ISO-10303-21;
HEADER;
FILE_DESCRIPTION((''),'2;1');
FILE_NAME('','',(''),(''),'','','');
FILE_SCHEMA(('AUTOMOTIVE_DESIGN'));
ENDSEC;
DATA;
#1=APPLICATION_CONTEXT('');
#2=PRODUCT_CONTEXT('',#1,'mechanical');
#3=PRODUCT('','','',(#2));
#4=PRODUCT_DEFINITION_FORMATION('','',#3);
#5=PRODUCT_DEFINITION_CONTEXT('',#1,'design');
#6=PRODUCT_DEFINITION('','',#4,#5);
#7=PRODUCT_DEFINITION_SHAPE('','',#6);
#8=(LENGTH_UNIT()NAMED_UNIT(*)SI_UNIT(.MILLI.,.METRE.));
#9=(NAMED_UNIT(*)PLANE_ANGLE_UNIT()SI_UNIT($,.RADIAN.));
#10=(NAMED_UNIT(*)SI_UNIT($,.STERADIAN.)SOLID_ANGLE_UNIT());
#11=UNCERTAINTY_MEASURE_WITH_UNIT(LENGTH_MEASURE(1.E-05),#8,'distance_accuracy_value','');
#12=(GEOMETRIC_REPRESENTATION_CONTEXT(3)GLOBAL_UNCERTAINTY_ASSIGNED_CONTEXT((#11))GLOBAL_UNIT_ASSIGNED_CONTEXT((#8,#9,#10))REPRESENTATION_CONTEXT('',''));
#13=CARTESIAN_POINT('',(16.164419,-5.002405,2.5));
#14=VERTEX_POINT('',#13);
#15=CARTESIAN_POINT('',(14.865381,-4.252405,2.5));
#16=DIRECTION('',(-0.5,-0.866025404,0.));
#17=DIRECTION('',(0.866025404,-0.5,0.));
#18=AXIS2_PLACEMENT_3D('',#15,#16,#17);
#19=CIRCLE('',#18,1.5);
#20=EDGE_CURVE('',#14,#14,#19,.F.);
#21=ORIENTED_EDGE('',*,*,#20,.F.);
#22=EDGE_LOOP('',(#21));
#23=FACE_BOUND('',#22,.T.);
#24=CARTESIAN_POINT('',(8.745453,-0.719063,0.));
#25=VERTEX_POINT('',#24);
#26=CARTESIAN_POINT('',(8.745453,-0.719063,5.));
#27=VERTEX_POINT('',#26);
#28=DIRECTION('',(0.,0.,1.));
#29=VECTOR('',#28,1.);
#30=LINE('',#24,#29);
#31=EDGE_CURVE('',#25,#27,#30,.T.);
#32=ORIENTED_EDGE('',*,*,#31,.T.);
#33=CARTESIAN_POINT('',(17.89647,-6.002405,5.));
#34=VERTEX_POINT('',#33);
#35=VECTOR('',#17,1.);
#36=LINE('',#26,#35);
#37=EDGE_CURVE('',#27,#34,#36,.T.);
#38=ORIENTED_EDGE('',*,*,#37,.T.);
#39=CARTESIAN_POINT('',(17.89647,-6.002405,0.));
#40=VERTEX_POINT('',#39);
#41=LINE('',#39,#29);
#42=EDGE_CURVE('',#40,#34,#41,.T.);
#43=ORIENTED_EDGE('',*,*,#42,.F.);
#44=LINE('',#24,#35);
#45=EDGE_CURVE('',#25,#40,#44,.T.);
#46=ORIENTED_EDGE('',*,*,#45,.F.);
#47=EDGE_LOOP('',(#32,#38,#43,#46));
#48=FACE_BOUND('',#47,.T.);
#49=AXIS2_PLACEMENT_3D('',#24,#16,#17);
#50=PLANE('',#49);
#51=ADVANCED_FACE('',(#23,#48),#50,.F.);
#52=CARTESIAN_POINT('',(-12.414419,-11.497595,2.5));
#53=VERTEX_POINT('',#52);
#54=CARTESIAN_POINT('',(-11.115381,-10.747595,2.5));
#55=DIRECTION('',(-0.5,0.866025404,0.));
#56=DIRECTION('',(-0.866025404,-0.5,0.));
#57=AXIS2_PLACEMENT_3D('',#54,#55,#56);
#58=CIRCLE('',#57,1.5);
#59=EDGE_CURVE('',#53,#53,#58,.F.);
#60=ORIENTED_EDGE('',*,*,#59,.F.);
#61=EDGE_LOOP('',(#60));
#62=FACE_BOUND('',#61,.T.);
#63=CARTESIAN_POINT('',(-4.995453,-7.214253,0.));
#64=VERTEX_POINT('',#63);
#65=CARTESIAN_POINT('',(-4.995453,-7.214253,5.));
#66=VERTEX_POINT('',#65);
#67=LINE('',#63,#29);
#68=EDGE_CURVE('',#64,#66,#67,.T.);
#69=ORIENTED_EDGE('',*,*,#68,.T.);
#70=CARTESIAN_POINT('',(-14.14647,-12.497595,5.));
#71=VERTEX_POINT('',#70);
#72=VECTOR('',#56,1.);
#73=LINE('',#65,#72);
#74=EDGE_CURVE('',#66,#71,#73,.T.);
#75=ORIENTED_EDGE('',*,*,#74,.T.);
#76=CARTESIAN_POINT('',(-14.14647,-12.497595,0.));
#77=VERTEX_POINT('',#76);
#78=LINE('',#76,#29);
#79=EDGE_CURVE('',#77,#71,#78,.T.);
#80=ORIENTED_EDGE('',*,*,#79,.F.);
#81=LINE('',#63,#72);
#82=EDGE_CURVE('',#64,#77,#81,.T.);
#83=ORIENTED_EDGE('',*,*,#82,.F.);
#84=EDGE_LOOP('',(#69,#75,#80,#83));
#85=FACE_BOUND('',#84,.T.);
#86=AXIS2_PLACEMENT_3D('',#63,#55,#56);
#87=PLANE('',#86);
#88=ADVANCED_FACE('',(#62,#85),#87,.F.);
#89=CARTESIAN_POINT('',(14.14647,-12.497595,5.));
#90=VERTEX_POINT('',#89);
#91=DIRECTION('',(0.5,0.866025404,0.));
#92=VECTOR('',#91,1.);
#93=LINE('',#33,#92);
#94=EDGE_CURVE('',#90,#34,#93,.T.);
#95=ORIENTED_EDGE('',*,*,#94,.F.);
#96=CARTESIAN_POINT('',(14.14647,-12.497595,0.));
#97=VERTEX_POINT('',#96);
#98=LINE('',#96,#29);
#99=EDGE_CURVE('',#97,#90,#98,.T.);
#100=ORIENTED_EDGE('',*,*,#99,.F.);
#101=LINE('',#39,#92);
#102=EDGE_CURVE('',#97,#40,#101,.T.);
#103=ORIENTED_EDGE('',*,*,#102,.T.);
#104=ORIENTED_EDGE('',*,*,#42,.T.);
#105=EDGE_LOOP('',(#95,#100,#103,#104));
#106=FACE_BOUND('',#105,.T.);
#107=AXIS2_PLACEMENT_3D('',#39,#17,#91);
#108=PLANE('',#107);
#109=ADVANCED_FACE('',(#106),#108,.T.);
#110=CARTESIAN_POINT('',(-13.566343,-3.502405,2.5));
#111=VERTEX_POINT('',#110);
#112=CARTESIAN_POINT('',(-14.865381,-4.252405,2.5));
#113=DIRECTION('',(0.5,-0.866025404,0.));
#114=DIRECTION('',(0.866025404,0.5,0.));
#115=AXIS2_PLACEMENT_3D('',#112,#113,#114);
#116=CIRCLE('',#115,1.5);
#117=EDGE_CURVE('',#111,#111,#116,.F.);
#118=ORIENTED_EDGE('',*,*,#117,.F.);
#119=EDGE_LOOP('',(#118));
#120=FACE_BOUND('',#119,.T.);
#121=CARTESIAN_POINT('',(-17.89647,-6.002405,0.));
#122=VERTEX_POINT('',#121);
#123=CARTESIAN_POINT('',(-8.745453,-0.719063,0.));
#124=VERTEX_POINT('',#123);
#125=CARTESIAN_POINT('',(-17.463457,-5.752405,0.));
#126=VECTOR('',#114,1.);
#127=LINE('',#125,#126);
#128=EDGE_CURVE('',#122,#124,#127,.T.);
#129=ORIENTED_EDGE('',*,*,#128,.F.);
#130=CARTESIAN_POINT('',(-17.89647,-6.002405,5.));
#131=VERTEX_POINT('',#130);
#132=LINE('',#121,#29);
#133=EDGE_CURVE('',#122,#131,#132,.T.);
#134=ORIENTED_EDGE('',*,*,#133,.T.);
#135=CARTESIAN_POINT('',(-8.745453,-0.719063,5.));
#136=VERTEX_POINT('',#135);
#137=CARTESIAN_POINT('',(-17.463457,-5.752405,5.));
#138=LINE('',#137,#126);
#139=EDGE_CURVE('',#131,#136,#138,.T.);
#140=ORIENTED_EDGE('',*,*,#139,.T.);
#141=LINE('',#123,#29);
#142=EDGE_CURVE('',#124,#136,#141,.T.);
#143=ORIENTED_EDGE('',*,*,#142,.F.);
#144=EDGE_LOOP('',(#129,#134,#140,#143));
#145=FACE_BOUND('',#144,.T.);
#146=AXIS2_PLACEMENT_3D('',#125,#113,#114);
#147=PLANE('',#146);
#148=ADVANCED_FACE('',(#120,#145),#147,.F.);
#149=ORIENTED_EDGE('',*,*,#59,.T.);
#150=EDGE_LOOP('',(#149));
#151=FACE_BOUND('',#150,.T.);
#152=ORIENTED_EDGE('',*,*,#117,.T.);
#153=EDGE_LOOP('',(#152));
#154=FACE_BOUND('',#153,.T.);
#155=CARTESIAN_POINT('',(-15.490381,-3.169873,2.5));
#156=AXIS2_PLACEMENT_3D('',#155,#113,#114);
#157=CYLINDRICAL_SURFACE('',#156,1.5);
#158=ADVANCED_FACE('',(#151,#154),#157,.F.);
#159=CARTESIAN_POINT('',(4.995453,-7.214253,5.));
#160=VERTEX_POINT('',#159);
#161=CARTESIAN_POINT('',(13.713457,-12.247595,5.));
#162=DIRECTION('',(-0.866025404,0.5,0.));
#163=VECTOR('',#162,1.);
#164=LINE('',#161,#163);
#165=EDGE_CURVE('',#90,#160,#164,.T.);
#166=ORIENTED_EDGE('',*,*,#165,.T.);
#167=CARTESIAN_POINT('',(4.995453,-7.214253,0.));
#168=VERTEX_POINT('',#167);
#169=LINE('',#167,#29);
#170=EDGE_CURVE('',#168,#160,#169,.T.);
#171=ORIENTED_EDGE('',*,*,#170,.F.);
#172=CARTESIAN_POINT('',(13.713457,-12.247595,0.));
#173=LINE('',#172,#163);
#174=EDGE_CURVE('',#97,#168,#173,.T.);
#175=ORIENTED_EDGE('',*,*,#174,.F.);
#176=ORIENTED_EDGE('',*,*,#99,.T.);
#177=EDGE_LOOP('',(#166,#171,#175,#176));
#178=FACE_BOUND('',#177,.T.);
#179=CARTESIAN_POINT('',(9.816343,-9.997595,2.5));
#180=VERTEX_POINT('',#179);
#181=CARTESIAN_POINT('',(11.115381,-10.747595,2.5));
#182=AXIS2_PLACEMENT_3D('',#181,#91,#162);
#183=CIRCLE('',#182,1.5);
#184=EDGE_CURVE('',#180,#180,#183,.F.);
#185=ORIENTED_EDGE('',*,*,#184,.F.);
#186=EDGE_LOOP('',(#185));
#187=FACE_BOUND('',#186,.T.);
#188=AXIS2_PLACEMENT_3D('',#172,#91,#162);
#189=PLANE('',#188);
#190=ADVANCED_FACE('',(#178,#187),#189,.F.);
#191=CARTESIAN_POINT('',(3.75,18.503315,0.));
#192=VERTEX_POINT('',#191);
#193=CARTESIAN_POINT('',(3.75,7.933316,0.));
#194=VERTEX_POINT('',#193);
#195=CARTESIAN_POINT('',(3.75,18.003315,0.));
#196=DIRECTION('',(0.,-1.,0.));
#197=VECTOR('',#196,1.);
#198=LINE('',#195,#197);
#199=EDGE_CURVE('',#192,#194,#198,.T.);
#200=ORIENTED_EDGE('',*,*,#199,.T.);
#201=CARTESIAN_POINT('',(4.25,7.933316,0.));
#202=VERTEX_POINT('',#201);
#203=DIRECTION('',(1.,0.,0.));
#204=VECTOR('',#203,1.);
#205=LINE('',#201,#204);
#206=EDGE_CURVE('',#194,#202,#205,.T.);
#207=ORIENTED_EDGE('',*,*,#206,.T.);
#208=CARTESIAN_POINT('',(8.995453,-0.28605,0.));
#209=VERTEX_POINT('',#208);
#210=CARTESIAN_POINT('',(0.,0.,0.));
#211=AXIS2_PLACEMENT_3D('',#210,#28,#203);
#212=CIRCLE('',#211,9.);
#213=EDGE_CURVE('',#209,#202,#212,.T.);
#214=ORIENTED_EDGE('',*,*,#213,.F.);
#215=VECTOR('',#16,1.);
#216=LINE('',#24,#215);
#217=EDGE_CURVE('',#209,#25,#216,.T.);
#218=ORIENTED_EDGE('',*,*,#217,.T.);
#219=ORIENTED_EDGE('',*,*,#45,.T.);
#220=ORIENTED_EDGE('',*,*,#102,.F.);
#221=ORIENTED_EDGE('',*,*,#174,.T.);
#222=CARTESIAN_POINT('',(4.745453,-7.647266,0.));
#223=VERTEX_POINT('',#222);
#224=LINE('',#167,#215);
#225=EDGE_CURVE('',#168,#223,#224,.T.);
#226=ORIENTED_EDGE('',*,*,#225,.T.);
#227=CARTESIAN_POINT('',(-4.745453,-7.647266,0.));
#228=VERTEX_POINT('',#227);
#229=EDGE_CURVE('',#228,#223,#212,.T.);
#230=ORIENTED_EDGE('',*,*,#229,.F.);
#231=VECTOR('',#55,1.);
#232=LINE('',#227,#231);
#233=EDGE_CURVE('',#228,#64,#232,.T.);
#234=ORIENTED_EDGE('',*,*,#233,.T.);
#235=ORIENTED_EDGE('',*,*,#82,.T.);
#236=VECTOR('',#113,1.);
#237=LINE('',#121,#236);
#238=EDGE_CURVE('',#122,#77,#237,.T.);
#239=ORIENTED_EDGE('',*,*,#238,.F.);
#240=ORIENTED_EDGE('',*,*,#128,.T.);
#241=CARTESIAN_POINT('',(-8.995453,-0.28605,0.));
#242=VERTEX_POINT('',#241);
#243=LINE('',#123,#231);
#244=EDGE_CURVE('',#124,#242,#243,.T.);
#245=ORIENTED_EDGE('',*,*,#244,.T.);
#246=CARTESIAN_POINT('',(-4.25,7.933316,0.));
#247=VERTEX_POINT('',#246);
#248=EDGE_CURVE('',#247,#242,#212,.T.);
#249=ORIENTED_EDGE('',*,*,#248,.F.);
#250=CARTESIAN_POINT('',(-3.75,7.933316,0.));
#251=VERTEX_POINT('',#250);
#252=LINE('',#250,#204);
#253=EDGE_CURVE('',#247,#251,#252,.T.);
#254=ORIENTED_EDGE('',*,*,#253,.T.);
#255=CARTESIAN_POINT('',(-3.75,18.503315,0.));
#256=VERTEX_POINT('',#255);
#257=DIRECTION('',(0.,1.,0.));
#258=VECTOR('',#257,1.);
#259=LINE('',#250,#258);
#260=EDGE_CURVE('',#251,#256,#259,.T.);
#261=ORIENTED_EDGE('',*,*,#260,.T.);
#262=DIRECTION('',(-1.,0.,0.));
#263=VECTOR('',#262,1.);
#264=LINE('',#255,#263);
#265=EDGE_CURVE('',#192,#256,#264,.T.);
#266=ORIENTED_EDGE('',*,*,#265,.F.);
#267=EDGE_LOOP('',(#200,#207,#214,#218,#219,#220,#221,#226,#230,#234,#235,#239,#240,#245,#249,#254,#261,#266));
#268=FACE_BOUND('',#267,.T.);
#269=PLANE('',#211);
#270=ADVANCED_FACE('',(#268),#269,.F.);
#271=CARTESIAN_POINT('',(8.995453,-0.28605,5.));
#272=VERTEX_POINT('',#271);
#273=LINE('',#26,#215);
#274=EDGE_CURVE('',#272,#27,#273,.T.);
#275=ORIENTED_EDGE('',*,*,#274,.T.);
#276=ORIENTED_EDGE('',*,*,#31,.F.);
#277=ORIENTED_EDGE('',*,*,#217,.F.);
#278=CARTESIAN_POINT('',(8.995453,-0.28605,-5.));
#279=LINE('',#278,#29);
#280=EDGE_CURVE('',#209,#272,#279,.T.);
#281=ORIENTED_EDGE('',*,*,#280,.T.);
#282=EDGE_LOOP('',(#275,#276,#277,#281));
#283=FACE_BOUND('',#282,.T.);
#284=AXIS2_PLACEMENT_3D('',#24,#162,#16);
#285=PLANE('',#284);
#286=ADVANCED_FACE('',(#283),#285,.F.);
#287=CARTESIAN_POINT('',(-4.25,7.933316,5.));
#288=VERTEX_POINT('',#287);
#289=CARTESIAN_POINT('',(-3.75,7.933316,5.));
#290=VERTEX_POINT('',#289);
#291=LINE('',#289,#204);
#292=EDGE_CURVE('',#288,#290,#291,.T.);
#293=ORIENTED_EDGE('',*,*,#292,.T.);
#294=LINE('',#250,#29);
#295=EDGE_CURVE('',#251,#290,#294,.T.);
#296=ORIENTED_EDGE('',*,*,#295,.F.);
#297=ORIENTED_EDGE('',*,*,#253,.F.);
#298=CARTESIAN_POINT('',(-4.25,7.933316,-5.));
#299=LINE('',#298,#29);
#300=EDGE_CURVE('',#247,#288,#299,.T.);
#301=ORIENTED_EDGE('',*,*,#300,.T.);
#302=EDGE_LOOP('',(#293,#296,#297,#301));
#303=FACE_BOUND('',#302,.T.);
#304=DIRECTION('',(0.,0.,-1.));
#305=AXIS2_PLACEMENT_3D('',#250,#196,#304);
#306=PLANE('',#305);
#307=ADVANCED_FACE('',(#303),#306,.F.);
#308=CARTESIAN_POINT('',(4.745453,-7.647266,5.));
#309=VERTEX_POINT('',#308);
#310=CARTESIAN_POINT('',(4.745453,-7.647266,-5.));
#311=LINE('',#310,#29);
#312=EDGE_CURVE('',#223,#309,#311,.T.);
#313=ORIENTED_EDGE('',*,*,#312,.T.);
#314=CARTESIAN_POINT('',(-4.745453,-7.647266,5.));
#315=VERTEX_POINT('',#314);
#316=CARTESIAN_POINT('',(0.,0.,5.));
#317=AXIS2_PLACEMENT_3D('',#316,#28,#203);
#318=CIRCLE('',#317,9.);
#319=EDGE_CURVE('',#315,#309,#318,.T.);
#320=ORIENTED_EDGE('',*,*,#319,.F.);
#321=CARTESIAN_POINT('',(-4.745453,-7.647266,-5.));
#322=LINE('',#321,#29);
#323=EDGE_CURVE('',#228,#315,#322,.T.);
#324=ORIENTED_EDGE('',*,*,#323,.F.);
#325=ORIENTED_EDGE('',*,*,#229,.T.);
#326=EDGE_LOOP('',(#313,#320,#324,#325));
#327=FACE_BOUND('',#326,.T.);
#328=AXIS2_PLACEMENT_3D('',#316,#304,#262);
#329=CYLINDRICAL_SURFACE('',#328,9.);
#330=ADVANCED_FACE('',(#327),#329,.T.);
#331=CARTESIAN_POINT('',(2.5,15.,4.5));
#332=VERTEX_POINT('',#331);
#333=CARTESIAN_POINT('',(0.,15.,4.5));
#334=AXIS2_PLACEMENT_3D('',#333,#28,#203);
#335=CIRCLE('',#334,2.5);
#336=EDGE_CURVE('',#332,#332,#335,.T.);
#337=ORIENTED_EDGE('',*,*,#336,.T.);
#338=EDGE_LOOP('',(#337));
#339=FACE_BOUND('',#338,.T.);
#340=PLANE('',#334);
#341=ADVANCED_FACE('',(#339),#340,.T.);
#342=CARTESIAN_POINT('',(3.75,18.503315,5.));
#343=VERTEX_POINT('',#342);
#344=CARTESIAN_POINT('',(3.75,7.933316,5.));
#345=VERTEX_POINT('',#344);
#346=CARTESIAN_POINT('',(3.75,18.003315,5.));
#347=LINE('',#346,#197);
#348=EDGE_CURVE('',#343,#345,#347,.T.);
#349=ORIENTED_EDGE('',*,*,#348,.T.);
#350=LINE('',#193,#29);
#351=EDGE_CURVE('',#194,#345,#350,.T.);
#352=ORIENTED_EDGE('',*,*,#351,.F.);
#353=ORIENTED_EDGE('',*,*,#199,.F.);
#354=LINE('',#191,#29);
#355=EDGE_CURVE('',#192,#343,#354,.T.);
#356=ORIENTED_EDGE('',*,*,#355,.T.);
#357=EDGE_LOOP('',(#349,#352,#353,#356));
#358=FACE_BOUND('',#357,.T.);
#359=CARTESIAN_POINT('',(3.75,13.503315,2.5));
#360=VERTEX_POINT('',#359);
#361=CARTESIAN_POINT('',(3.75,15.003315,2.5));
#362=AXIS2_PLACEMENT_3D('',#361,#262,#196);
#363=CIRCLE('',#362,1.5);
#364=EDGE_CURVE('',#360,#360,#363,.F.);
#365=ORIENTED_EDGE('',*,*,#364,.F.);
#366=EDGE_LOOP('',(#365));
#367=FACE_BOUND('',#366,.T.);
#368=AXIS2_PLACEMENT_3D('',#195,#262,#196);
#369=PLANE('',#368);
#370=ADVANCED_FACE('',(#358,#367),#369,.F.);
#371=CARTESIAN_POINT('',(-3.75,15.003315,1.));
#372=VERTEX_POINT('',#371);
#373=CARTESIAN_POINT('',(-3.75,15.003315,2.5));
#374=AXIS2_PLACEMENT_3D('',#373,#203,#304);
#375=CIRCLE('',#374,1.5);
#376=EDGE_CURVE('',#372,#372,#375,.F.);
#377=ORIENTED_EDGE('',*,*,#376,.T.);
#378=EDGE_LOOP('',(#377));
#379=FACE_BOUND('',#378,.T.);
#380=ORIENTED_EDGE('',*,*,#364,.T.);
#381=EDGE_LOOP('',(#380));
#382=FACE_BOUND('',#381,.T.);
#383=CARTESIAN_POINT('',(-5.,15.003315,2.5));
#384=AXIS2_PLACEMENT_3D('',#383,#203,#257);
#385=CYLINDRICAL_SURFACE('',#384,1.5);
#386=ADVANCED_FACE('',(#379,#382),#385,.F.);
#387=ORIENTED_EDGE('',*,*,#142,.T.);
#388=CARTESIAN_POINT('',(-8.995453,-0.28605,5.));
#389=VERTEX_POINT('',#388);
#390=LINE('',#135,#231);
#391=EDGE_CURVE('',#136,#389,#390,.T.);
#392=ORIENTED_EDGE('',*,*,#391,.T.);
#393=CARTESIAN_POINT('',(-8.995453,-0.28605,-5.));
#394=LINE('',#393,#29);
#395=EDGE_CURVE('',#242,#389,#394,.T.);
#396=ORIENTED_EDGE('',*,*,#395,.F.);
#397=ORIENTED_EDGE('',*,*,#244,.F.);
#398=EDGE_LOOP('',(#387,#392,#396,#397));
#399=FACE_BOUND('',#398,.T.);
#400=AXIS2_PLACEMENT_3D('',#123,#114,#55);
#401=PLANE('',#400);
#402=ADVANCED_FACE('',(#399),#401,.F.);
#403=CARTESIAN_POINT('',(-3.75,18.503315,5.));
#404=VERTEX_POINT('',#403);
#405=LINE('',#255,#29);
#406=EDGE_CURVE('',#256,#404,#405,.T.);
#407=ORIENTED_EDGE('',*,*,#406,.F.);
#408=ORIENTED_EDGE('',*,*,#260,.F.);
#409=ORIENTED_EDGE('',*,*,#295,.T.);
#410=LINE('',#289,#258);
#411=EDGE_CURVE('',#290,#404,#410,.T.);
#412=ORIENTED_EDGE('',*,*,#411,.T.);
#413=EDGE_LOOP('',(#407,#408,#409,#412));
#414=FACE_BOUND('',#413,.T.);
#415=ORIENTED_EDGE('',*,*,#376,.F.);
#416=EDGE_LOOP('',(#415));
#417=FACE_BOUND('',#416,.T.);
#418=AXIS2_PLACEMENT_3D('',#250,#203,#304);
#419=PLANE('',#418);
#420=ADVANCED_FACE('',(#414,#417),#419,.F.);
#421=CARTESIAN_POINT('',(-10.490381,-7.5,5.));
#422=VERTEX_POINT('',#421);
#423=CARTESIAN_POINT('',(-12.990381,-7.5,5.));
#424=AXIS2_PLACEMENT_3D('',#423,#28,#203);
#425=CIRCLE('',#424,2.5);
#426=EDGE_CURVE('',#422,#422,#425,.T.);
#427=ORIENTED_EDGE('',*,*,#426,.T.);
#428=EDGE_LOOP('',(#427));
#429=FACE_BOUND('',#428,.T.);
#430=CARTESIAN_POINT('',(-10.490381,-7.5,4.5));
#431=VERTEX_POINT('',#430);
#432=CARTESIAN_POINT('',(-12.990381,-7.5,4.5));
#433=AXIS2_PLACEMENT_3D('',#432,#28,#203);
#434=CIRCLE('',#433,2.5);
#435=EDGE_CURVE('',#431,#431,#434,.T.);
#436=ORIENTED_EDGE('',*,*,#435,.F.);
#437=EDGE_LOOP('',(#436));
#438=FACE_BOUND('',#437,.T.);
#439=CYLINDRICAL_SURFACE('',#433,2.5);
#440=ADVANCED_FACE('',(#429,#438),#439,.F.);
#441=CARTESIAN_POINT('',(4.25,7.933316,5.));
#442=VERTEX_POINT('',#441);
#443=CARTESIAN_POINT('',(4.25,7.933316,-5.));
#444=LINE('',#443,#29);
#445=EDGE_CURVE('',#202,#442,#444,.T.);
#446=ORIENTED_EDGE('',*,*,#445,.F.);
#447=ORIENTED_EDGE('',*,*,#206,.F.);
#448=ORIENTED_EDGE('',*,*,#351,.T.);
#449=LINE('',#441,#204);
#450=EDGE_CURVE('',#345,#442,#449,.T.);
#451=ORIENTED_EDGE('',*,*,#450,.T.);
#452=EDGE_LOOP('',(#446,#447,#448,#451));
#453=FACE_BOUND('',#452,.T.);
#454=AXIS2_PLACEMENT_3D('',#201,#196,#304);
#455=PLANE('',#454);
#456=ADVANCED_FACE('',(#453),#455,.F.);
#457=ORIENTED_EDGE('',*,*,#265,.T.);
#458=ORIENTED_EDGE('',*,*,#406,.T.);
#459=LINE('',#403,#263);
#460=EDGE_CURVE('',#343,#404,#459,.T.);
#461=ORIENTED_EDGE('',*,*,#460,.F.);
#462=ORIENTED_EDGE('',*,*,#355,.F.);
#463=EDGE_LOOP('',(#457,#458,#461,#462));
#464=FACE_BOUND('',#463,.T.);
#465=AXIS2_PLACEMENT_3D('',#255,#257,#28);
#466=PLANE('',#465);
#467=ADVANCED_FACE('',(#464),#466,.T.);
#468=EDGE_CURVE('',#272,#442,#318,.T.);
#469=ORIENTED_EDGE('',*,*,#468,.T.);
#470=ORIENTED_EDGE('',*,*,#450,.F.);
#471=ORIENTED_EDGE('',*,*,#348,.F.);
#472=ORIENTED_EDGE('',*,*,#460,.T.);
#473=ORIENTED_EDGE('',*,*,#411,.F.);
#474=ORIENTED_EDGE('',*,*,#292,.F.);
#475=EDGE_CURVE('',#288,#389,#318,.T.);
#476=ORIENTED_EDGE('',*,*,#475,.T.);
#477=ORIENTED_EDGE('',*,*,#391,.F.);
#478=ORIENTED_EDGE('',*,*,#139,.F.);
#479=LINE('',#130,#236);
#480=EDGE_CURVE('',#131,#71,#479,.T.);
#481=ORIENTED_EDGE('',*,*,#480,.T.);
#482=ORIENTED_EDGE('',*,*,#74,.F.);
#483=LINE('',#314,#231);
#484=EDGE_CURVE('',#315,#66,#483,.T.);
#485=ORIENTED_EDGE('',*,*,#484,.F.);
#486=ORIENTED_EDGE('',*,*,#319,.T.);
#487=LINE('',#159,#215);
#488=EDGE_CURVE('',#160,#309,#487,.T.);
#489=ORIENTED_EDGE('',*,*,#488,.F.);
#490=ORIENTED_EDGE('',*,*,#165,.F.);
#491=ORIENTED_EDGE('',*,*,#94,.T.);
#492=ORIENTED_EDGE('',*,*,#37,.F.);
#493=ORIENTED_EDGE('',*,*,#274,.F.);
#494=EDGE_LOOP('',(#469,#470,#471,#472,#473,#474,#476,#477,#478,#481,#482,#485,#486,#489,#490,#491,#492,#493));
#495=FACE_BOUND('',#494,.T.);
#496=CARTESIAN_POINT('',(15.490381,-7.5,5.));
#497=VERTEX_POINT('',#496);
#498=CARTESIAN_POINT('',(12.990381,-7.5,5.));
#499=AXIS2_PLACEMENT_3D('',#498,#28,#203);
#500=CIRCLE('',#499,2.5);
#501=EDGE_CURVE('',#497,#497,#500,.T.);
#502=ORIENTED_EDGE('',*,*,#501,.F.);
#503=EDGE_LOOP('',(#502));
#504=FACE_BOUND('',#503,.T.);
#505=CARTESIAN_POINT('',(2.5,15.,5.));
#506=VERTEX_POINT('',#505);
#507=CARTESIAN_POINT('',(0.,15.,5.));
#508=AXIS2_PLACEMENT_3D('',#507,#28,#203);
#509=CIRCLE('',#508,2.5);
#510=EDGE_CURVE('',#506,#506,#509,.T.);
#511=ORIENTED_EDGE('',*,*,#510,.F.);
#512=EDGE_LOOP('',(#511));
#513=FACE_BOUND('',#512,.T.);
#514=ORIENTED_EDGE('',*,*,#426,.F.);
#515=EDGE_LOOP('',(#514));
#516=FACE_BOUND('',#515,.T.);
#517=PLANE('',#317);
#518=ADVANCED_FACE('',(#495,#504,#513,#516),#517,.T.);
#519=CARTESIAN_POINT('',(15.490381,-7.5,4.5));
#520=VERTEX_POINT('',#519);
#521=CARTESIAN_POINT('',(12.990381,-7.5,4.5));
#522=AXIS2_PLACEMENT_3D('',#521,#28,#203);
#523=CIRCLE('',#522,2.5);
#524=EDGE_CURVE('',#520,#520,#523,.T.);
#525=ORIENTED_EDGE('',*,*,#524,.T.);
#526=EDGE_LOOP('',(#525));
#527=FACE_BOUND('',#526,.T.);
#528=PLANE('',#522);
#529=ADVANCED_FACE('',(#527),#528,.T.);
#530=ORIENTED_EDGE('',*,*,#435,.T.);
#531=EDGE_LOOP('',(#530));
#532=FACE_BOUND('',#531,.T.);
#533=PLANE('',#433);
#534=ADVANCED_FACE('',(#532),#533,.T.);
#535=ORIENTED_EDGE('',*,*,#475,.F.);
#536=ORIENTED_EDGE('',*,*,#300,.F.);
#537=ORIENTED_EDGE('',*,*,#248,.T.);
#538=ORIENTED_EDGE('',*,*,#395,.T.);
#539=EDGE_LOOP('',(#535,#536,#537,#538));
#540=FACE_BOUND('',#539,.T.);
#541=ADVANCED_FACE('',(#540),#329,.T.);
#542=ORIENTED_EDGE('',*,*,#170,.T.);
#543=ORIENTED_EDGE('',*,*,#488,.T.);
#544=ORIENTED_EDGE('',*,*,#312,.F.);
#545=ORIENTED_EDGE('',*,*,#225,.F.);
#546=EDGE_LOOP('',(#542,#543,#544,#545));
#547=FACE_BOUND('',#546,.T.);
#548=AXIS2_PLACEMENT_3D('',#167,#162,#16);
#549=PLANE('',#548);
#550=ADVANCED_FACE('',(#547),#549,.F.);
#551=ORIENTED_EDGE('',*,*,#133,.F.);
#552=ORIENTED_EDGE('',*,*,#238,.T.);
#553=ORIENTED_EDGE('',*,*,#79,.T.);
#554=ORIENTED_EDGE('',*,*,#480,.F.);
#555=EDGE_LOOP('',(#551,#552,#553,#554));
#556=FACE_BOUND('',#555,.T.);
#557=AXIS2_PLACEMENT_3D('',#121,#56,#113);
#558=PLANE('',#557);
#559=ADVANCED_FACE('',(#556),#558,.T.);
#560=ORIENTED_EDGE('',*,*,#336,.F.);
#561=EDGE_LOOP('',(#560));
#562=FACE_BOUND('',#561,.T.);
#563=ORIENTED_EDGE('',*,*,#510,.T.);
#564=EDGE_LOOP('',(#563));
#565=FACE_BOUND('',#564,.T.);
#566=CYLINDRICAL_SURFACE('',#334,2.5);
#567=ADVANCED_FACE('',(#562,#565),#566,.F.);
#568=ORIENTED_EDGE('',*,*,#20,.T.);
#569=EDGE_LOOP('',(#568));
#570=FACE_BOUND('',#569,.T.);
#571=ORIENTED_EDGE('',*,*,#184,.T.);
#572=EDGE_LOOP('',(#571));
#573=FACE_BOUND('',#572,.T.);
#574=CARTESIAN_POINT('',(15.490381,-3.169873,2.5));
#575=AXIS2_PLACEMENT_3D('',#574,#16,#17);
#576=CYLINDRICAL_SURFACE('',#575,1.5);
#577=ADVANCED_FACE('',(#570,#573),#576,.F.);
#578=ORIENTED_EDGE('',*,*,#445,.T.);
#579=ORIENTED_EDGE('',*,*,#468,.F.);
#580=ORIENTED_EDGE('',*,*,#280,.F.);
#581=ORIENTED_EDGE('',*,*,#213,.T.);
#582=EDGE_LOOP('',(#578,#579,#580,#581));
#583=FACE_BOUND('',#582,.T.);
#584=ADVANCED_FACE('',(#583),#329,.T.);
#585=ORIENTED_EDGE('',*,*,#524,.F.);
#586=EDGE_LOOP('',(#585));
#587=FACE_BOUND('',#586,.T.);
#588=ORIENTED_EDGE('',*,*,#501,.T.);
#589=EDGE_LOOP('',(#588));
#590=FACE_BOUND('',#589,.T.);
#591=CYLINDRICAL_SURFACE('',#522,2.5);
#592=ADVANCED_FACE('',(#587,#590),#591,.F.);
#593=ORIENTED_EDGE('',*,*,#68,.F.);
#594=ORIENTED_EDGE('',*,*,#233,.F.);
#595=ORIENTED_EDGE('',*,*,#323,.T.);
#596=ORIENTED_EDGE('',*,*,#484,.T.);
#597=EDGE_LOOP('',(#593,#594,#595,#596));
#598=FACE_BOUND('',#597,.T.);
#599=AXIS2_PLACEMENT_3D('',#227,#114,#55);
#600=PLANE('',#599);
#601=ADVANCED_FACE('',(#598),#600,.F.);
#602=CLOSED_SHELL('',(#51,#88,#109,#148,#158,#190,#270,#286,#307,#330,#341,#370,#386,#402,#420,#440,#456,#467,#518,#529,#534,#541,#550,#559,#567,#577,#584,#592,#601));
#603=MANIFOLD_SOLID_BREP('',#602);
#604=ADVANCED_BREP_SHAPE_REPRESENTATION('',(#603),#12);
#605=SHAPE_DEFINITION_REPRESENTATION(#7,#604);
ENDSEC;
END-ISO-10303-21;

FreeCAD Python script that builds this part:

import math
import FreeCAD as App
import Part
import Sketcher
from FreeCAD import Vector
Q = App.Units.Quantity


def add_polygon(sketch, points):
    """Adds a closed chain of lines whose ends are joined by coincident constraints."""
    first, n = sketch.GeometryCount, len(points)
    for a, b in zip(points, points[1:] + points[:1]):
        sketch.addGeometry(Part.LineSegment(App.Vector(*a, 0), App.Vector(*b, 0)), False)
    for i in range(n):
        sketch.addConstraint(Sketcher.Constraint("Coincident", first + i, 2, first + (i + 1) % n, 1))

doc = App.newDocument("Part")
body = doc.addObject("PartDesign::Body", "Body")

sketch1 = body.newObject("Sketcher::SketchObject", "Sketch")
sketch1.AttachmentSupport = (doc.getObject("XY_Plane"), [""])
sketch1.MapMode = "FlatFace"
sketch1.addGeometry([
    Part.LineSegment(Vector(18, -5, 0), Vector(9, 1, 0)),
    Part.ArcOfCircle(Part.Circle(Vector(0, 0, 0), Vector(0, 0, 1), 9), math.radians(4), math.radians(56)),
    Part.LineSegment(Vector(5, 7, 0), Vector(5, 18, 0)),
    Part.LineSegment(Vector(5, 18, 0), Vector(-5, 18, 0)),
    Part.LineSegment(Vector(-5, 18, 0), Vector(-5, 7, 0)),
    Part.ArcOfCircle(Part.Circle(Vector(0, 0, 0), Vector(0, 0, 1), 9), math.radians(124), math.radians(176)),
    Part.LineSegment(Vector(-9, 1, 0), Vector(-18, -5, 0)),
    Part.LineSegment(Vector(-18, -5, 0), Vector(-13, -13, 0)),
    Part.LineSegment(Vector(-13, -13, 0), Vector(-4, -8, 0)),
    Part.ArcOfCircle(Part.Circle(Vector(0, 0, 0), Vector(0, 0, 1), 9), math.radians(-116), math.radians(-64)),
    Part.LineSegment(Vector(4, -8, 0), Vector(13, -13, 0)),
    Part.LineSegment(Vector(13, -13, 0), Vector(18, -5, 0)),
], False)
sketch1.addConstraint([
    Sketcher.Constraint("Coincident", 0, 2, 1, 1),
    Sketcher.Constraint("Coincident", 1, 2, 2, 1),
    Sketcher.Constraint("Coincident", 2, 2, 3, 1),
    Sketcher.Constraint("Coincident", 3, 2, 4, 1),
    Sketcher.Constraint("Coincident", 4, 2, 5, 1),
    Sketcher.Constraint("Coincident", 5, 2, 6, 1),
    Sketcher.Constraint("Coincident", 6, 2, 7, 1),
    Sketcher.Constraint("Coincident", 7, 2, 8, 1),
    Sketcher.Constraint("Coincident", 8, 2, 9, 1),
    Sketcher.Constraint("Coincident", 9, 2, 10, 1),
    Sketcher.Constraint("Coincident", 10, 2, 11, 1),
    Sketcher.Constraint("Coincident", 11, 2, 0, 1),
    Sketcher.Constraint("Vertical", 2),
    Sketcher.Constraint("Horizontal", 3),
    Sketcher.Constraint("Vertical", 4),
    Sketcher.Constraint("Coincident", 1, 3, -1, 1),
    Sketcher.Constraint("Coincident", 5, 3, -1, 1),
    Sketcher.Constraint("Coincident", 9, 3, -1, 1),
    Sketcher.Constraint("Equal", 1, 5),
    Sketcher.Constraint("Equal", 5, 9),
    Sketcher.Constraint("Symmetric", 7, 2, 10, 2, -2),
    Sketcher.Constraint("Symmetric", 6, 2, 11, 2, -2),
    Sketcher.Constraint("Perpendicular", 6, 7),
    Sketcher.Constraint("Perpendicular", 7, 8),
    Sketcher.Constraint("Parallel", 0, 10),
    Sketcher.Constraint("Perpendicular", 10, 11),
    Sketcher.Constraint("Horizontal", 1, 2, 4, 2),
    Sketcher.Constraint("Equal", 6, 8),
    Sketcher.Constraint("Radius", 1, Q("9 mm")),
    Sketcher.Constraint("DistanceX", 3, 2, 3, 1, Q("10 mm")),
    Sketcher.Constraint("Angle", 0, Q("150 deg")),
    Sketcher.Constraint("Distance", 7, Q("10 mm")),
    Sketcher.Constraint("DistanceY", 2, 1, 2, 2, Q("10.52 mm")),
    Sketcher.Constraint("DistanceY", 9, 2, 11, 2, Q("3.401911 mm")),
])
pad1 = body.newObject("PartDesign::Pad", "Pad")
pad1.Profile = sketch1
pad1.Length = 5

sketch2 = body.newObject("Sketcher::SketchObject", "Sketch001")
sketch2.AttachmentSupport = (doc.getObject("YZ_Plane"), [""])
sketch2.MapMode = "FlatFace"
sketch2.AttachmentOffset = App.Placement(Vector(0, 0, 5), App.Rotation())
sketch2.addGeometry(Part.Circle(Vector(15, 2.5, 0), Vector(0, 0, 1), 1.5), False)
sketch2.addConstraint([
    Sketcher.Constraint("Diameter", 0, Q("3 mm")),
    Sketcher.Constraint("DistanceY", -1, 1, 0, 3, Q("2.5 mm")),
    Sketcher.Constraint("DistanceX", -1, 1, 0, 3, Q("15.003315 mm")),
])
pocket1 = body.newObject("PartDesign::Pocket", "Pocket")
pocket1.Profile = sketch2
pocket1.Length = 10

sketch3 = body.newObject("Sketcher::SketchObject", "Sketch002")
sketch3.Placement = App.Placement(Vector(-2.5, -4.330127, 0), App.Rotation(Vector(0.866025404, -0.5, 0), Vector(0, 0, 1), Vector(-0.5, -0.866025404, 0), "ZXY"))
sketch3.addGeometry(Part.Circle(Vector(15, 2.5, 0), Vector(0, 0, 1), 1.5), False)
sketch3.addConstraint([
    Sketcher.Constraint("Diameter", 0, Q("3 mm")),
    Sketcher.Constraint("DistanceX", -1, 1, 0, 3, Q("15 mm")),
    Sketcher.Constraint("DistanceY", -1, 1, 0, 3, Q("2.5 mm")),
])
pocket2 = body.newObject("PartDesign::Pocket", "Pocket001")
pocket2.Profile = sketch3
pocket2.Length = 10

sketch4 = body.newObject("Sketcher::SketchObject", "Sketch003")
sketch4.Placement = App.Placement(Vector(2.5, -4.330127, 0), App.Rotation(Vector(0.866025404, 0.5, 0), Vector(0, 0, 1), Vector(0.5, -0.866025404, 0), "ZXY"))
sketch4.addGeometry(Part.Circle(Vector(-15, 2.5, 0), Vector(0, 0, 1), 1.5), False)
sketch4.addConstraint([
    Sketcher.Constraint("Diameter", 0, Q("3 mm")),
    Sketcher.Constraint("DistanceX", 0, 3, -1, 1, Q("15 mm")),
    Sketcher.Constraint("DistanceY", -1, 1, 0, 3, Q("2.5 mm")),
])
pocket3 = body.newObject("PartDesign::Pocket", "Pocket002")
pocket3.Profile = sketch4
pocket3.Length = 10

sketch5 = body.newObject("Sketcher::SketchObject", "Sketch004")
sketch5.AttachmentSupport = (doc.getObject("XY_Plane"), [""])
sketch5.MapMode = "FlatFace"
sketch5.AttachmentOffset = App.Placement(Vector(0, 0, 5), App.Rotation())
add_polygon(sketch5, [(-4, 0), (-2, -3.5), (2, -3.5), (4, 0), (2, 3.5), (-2, 3.5)])
sketch5.addConstraint([
    Sketcher.Constraint("Horizontal", 1),
    Sketcher.Constraint("Horizontal", 4),
    Sketcher.Constraint("Symmetric", 0, 2, 3, 2, -1, 1),
    Sketcher.Constraint("Symmetric", 2, 2, 5, 2, -1, 1),
    Sketcher.Constraint("PointOnObject", 2, 2, -1),
    Sketcher.Constraint("Parallel", 2, 5),
    Sketcher.Constraint("Vertical", 1, 2, 3, 2),
    Sketcher.Constraint("DistanceX", 1, 1, 1, 2, Q("4 mm")),
    Sketcher.Constraint("Angle", 0, Q("-60 deg")),
    Sketcher.Constraint("Distance", 0, Q("4 mm")),
])
pocket4 = body.newObject("PartDesign::Pocket", "Pocket003")
pocket4.Profile = sketch5
pocket4.Length = 3

sketch6 = body.newObject("Sketcher::SketchObject", "Sketch005")
sketch6.AttachmentSupport = (doc.getObject("XY_Plane"), [""])
sketch6.MapMode = "FlatFace"
sketch6.AttachmentOffset = App.Placement(Vector(0, 0, 5), App.Rotation())
sketch6.addGeometry(Part.Circle(Vector(0, 0, 0), Vector(0, 0, 1), 2.5), False)
sketch6.addConstraint([
    Sketcher.Constraint("Coincident", 0, 3, -1, 1),
    Sketcher.Constraint("Diameter", 0, Q("5 mm")),
])
pocket5 = body.newObject("PartDesign::Pocket", "Pocket004")
pocket5.Profile = sketch6
pocket5.Length = 5

sketch7 = body.newObject("Sketcher::SketchObject", "Sketch006")
sketch7.AttachmentSupport = (doc.getObject("XY_Plane"), [""])
sketch7.MapMode = "FlatFace"
sketch7.AttachmentOffset = App.Placement(Vector(0, 0, -5), App.Rotation())
sketch7.addGeometry([
    Part.LineSegment(Vector(-17.8, -5.1, 0), Vector(-9, -0.1, 0)),
    Part.ArcOfCircle(Part.Circle(Vector(0, 0, 0), Vector(0, 0, 1), 9), math.radians(176.25), math.radians(180.37)),
    Part.LineSegment(Vector(-9, 0.6, 0), Vector(-18.1, -4.7, 0)),
    Part.LineSegment(Vector(-18.1, -4.7, 0), Vector(-17.8, -5.1, 0)),
    Part.LineSegment(Vector(-4.5, -7.8, 0), Vector(-13.4, -12.9, 0)),
    Part.LineSegment(Vector(-13.4, -12.9, 0), Vector(-13.1, -13.3, 0)),
    Part.LineSegment(Vector(-13.1, -13.3, 0), Vector(-4, -8.1, 0)),
    Part.ArcOfCircle(Part.Circle(Vector(0, 0, 0), Vector(0, 0, 1), 9), math.radians(-120.37), math.radians(-116.25)),
    Part.LineSegment(Vector(-4.5, 7.8, 0), Vector(-4.5, 18, 0)),
    Part.LineSegment(Vector(-4.5, 18, 0), Vector(-5, 18, 0)),
    Part.LineSegment(Vector(-5, 18, 0), Vector(-5, 7.5, 0)),
    Part.ArcOfCircle(Part.Circle(Vector(0, 0, 0), Vector(0, 0, 1), 9), math.radians(119.63), math.radians(123.75)),
    Part.LineSegment(Vector(4.5, 18, 0), Vector(4.5, 7.8, 0)),
    Part.ArcOfCircle(Part.Circle(Vector(0, 0, 0), Vector(0, 0, 1), 9), math.radians(56.25), math.radians(60.37)),
    Part.LineSegment(Vector(5, 7.5, 0), Vector(5, 18, 0)),
    Part.LineSegment(Vector(5, 18, 0), Vector(4.5, 18, 0)),
    Part.LineSegment(Vector(13.4, -12.9, 0), Vector(4.5, -7.8, 0)),
    Part.ArcOfCircle(Part.Circle(Vector(0, 0, 0), Vector(0, 0, 1), 9), math.radians(-63.75), math.radians(-59.63)),
    Part.LineSegment(Vector(4, -8.1, 0), Vector(13.1, -13.3, 0)),
    Part.LineSegment(Vector(13.1, -13.3, 0), Vector(13.4, -12.9, 0)),
    Part.LineSegment(Vector(9, -0.1, 0), Vector(17.8, -5.1, 0)),
    Part.LineSegment(Vector(17.8, -5.1, 0), Vector(18.1, -4.7, 0)),
    Part.LineSegment(Vector(18.1, -4.7, 0), Vector(9, 0.6, 0)),
    Part.ArcOfCircle(Part.Circle(Vector(0, 0, 0), Vector(0, 0, 1), 9), math.radians(-0.37), math.radians(3.75)),
], False)
sketch7.addConstraint([
    Sketcher.Constraint("Coincident", 0, 2, 1, 2),
    Sketcher.Constraint("Coincident", 1, 1, 2, 1),
    Sketcher.Constraint("Coincident", 2, 2, 3, 1),
    Sketcher.Constraint("Coincident", 3, 2, 0, 1),
    Sketcher.Constraint("Coincident", 4, 2, 5, 1),
    Sketcher.Constraint("Coincident", 5, 2, 6, 1),
    Sketcher.Constraint("Coincident", 6, 2, 7, 2),
    Sketcher.Constraint("Coincident", 7, 1, 4, 1),
    Sketcher.Constraint("Coincident", 8, 2, 9, 1),
    Sketcher.Constraint("Coincident", 9, 2, 10, 1),
    Sketcher.Constraint("Coincident", 10, 2, 11, 2),
    Sketcher.Constraint("Coincident", 11, 1, 8, 1),
    Sketcher.Constraint("Coincident", 12, 2, 13, 2),
    Sketcher.Constraint("Coincident", 13, 1, 14, 1),
    Sketcher.Constraint("Coincident", 14, 2, 15, 1),
    Sketcher.Constraint("Coincident", 15, 2, 12, 1),
    Sketcher.Constraint("Coincident", 16, 2, 17, 2),
    Sketcher.Constraint("Coincident", 17, 1, 18, 1),
    Sketcher.Constraint("Coincident", 18, 2, 19, 1),
    Sketcher.Constraint("Coincident", 19, 2, 16, 1),
    Sketcher.Constraint("Coincident", 20, 2, 21, 1),
    Sketcher.Constraint("Coincident", 21, 2, 22, 1),
    Sketcher.Constraint("Coincident", 22, 2, 23, 2),
    Sketcher.Constraint("Coincident", 23, 1, 20, 1),
    Sketcher.Constraint("Vertical", 8),
    Sketcher.Constraint("Horizontal", 9),
    Sketcher.Constraint("Vertical", 10),
    Sketcher.Constraint("Vertical", 12),
    Sketcher.Constraint("Vertical", 14),
    Sketcher.Constraint("Horizontal", 15),
    Sketcher.Constraint("Coincident", 1, 3, -1, 1),
    Sketcher.Constraint("Coincident", 7, 3, -1, 1),
    Sketcher.Constraint("Coincident", 11, 3, -1, 1),
    Sketcher.Constraint("Coincident", 13, 3, -1, 1),
    Sketcher.Constraint("Coincident", 17, 3, -1, 1),
    Sketcher.Constraint("Coincident", 23, 3, -1, 1),
    Sketcher.Constraint("Equal", 1, 7),
    Sketcher.Constraint("Equal", 7, 11),
    Sketcher.Constraint("Equal", 11, 13),
    Sketcher.Constraint("Equal", 13, 17),
    Sketcher.Constraint("Equal", 17, 23),
    Sketcher.Constraint("Symmetric", 9, 2, 14, 2, -2),
    Sketcher.Constraint("Symmetric", 5, 2, 18, 2, -2),
    Sketcher.Constraint("Symmetric", 4, 2, 19, 2, -2),
    Sketcher.Constraint("Symmetric", 3, 2, 20, 2, -2),
    Sketcher.Constraint("Symmetric", 2, 2, 21, 2, -2),
    Sketcher.Constraint("Parallel", 0, 2),
    Sketcher.Constraint("Perpendicular", 2, 3),
    Sketcher.Constraint("Perpendicular", 3, 4),
    Sketcher.Constraint("Perpendicular", 4, 5),
    Sketcher.Constraint("Perpendicular", 5, 6),
    Sketcher.Constraint("Parallel", 16, 18),
    Sketcher.Constraint("Perpendicular", 18, 19),
    Sketcher.Constraint("Perpendicular", 19, 20),
    Sketcher.Constraint("Perpendicular", 21, 22),
    Sketcher.Constraint("Horizontal", 11, 1, 12, 2),
    Sketcher.Constraint("Equal", 0, 4),
    Sketcher.Constraint("Equal", 3, 5),
    Sketcher.Constraint("Equal", 2, 6),
    Sketcher.Constraint("Radius", 1, Q("9 mm")),
    Sketcher.Constraint("Angle", 0, Q("30 deg")),
    Sketcher.Constraint("DistanceX", 9, 2, -1, 1, Q("5 mm")),
    Sketcher.Constraint("DistanceX", 2, 2, 5, 2, Q("5 mm")),
    Sketcher.Constraint("DistanceX", 9, 2, 9, 1, Q("0.55 mm")),
    Sketcher.Constraint("DistanceY", 10, 2, 10, 1, Q("10.52 mm")),
    Sketcher.Constraint("Distance", 3, Q("0.55 mm")),
    Sketcher.Constraint("DistanceY", 5, 2, 0, 2, Q("13.272499 mm")),
])
pocket6 = body.newObject("PartDesign::Pocket", "Pocket005")
pocket6.Profile = sketch7
pocket6.Length = 10
pocket6.Reversed = True

sketch8 = body.newObject("Sketcher::SketchObject", "Sketch007")
sketch8.AttachmentSupport = (doc.getObject("XY_Plane"), [""])
sketch8.MapMode = "FlatFace"
sketch8.addGeometry(Part.Circle(Vector(0, 0, 0), Vector(0, 0, 1), 2.9), False)
sketch8.addConstraint([
    Sketcher.Constraint("Coincident", 0, 3, -1, 1),
    Sketcher.Constraint("Diameter", 0, Q("5.8 mm")),
])
pocket7 = body.newObject("PartDesign::Pocket", "Pocket006")
pocket7.Profile = sketch8
pocket7.Length = 10
pocket7.Reversed = True

sketch9 = body.newObject("Sketcher::SketchObject", "Sketch008")
sketch9.AttachmentSupport = (doc.getObject("XY_Plane"), [""])
sketch9.MapMode = "FlatFace"
sketch9.AttachmentOffset = App.Placement(Vector(0, 0, -5), App.Rotation())
sketch9.addGeometry([
    Part.LineSegment(Vector(17.71, -5.32, 0), Vector(17.81, -5.15, 0)),
    Part.LineSegment(Vector(17.81, -5.15, 0), Vector(9, -0.06, 0)),
    Part.ArcOfCircle(Part.Circle(Vector(0, 0, 0), Vector(0, 0, 1), 9), math.radians(-1.82), math.radians(-0.37)),
    Part.LineSegment(Vector(9, -0.29, 0), Vector(17.71, -5.32, 0)),
    Part.LineSegment(Vector(-4.25, 18, 0), Vector(-4.45, 18, 0)),
    Part.LineSegment(Vector(-4.45, 18, 0), Vector(-4.45, 7.82, 0)),
    Part.ArcOfCircle(Part.Circle(Vector(0, 0, 0), Vector(0, 0, 1), 9), math.radians(118.18), math.radians(119.63)),
    Part.LineSegment(Vector(-4.25, 7.93, 0), Vector(-4.25, 18, 0)),
    Part.LineSegment(Vector(4.45, 7.82, 0), Vector(4.45, 18, 0)),
    Part.LineSegment(Vector(4.45, 18, 0), Vector(4.25, 18, 0)),
    Part.LineSegment(Vector(4.25, 18, 0), Vector(4.25, 7.93, 0)),
    Part.ArcOfCircle(Part.Circle(Vector(0, 0, 0), Vector(0, 0, 1), 9), math.radians(60.37), math.radians(61.82)),
    Part.LineSegment(Vector(4.55, -7.77, 0), Vector(13.36, -12.85, 0)),
    Part.LineSegment(Vector(13.36, -12.85, 0), Vector(13.46, -12.68, 0)),
    Part.LineSegment(Vector(13.46, -12.68, 0), Vector(4.75, -7.65, 0)),
    Part.ArcOfCircle(Part.Circle(Vector(0, 0, 0), Vector(0, 0, 1), 9), math.radians(-59.63), math.radians(-58.18)),
    Part.LineSegment(Vector(-13.36, -12.85, 0), Vector(-4.55, -7.77, 0)),
    Part.ArcOfCircle(Part.Circle(Vector(0, 0, 0), Vector(0, 0, 1), 9), math.radians(-121.82), math.radians(-120.37)),
    Part.LineSegment(Vector(-4.75, -7.65, 0), Vector(-13.46, -12.68, 0)),
    Part.LineSegment(Vector(-13.46, -12.68, 0), Vector(-13.36, -12.85, 0)),
    Part.LineSegment(Vector(-17.81, -5.15, 0), Vector(-17.71, -5.32, 0)),
    Part.LineSegment(Vector(-17.71, -5.32, 0), Vector(-9, -0.29, 0)),
    Part.ArcOfCircle(Part.Circle(Vector(0, 0, 0), Vector(0, 0, 1), 9), math.radians(-179.63), math.radians(-178.18)),
    Part.LineSegment(Vector(-9, -0.06, 0), Vector(-17.81, -5.15, 0)),
], False)
sketch9.addConstraint([
    Sketcher.Constraint("Coincident", 0, 2, 1, 1),
    Sketcher.Constraint("Coincident", 1, 2, 2, 2),
    Sketcher.Constraint("Coincident", 2, 1, 3, 1),
    Sketcher.Constraint("Coincident", 3, 2, 0, 1),
    Sketcher.Constraint("Coincident", 4, 2, 5, 1),
    Sketcher.Constraint("Coincident", 5, 2, 6, 2),
    Sketcher.Constraint("Coincident", 6, 1, 7, 1),
    Sketcher.Constraint("Coincident", 7, 2, 4, 1),
    Sketcher.Constraint("Coincident", 8, 2, 9, 1),
    Sketcher.Constraint("Coincident", 9, 2, 10, 1),
    Sketcher.Constraint("Coincident", 10, 2, 11, 2),
    Sketcher.Constraint("Coincident", 11, 1, 8, 1),
    Sketcher.Constraint("Coincident", 12, 2, 13, 1),
    Sketcher.Constraint("Coincident", 13, 2, 14, 1),
    Sketcher.Constraint("Coincident", 14, 2, 15, 2),
    Sketcher.Constraint("Coincident", 15, 1, 12, 1),
    Sketcher.Constraint("Coincident", 16, 2, 17, 2),
    Sketcher.Constraint("Coincident", 17, 1, 18, 1),
    Sketcher.Constraint("Coincident", 18, 2, 19, 1),
    Sketcher.Constraint("Coincident", 19, 2, 16, 1),
    Sketcher.Constraint("Coincident", 20, 2, 21, 1),
    Sketcher.Constraint("Coincident", 21, 2, 22, 2),
    Sketcher.Constraint("Coincident", 22, 1, 23, 1),
    Sketcher.Constraint("Coincident", 23, 2, 20, 1),
    Sketcher.Constraint("Horizontal", 4),
    Sketcher.Constraint("Vertical", 5),
    Sketcher.Constraint("Vertical", 7),
    Sketcher.Constraint("Vertical", 8),
    Sketcher.Constraint("Horizontal", 9),
    Sketcher.Constraint("Vertical", 10),
    Sketcher.Constraint("Coincident", 2, 3, -1, 1),
    Sketcher.Constraint("Coincident", 6, 3, -1, 1),
    Sketcher.Constraint("Coincident", 11, 3, -1, 1),
    Sketcher.Constraint("Coincident", 15, 3, -1, 1),
    Sketcher.Constraint("Coincident", 17, 3, -1, 1),
    Sketcher.Constraint("Coincident", 22, 3, -1, 1),
    Sketcher.Constraint("Equal", 6, 11),
    Sketcher.Constraint("Equal", 15, 17),
    Sketcher.Constraint("Equal", 2, 22),
    Sketcher.Constraint("Symmetric", 4, 2, 8, 2, -2),
    Sketcher.Constraint("Symmetric", 13, 2, 18, 2, -2),
    Sketcher.Constraint("Symmetric", 12, 2, 19, 2, -2),
    Sketcher.Constraint("Symmetric", 3, 2, 20, 2, -2),
    Sketcher.Constraint("Symmetric", 0, 2, 23, 2, -2),
    Sketcher.Constraint("Perpendicular", 0, 1),
    Sketcher.Constraint("Parallel", 1, 3),
    Sketcher.Constraint("Parallel", 3, 12),
    Sketcher.Constraint("Perpendicular", 12, 13),
    Sketcher.Constraint("Perpendicular", 13, 14),
    Sketcher.Constraint("Parallel", 16, 18),
    Sketcher.Constraint("Perpendicular", 18, 19),
    Sketcher.Constraint("Perpendicular", 20, 21),
    Sketcher.Constraint("Parallel", 21, 23),
    Sketcher.Constraint("Horizontal", 6, 1, 10, 2),
    Sketcher.Constraint("Equal", 1, 12),
    Sketcher.Constraint("Equal", 0, 13),
    Sketcher.Constraint("Equal", 3, 14),
    Sketcher.Constraint("Radius", 2, Q("8.999999 mm")),
    Sketcher.Constraint("Radius", 15, Q("9.000002 mm")),
    Sketcher.Constraint("Angle", 1, Q("150 deg")),
    Sketcher.Constraint("DistanceX", 4, 2, 4, 1, Q("0.2 mm")),
    Sketcher.Constraint("Distance", 0, Q("0.2 mm")),
    Sketcher.Constraint("DistanceY", 7, 1, 7, 2, Q("10.069999 mm")),
    Sketcher.Constraint("DistanceX", 7, 2, 8, 2, Q("8.7 mm")),
    Sketcher.Constraint("DistanceX", 12, 2, 3, 2, Q("4.35 mm")),
    Sketcher.Constraint("Radius", 6, Q("8.999992 mm")),
    Sketcher.Constraint("DistanceY", 3, 2, 11, 3, Q("5.319399 mm")),
])
pocket8 = body.newObject("PartDesign::Pocket", "Pocket007")
pocket8.Profile = sketch9
pocket8.Length = 10
pocket8.Reversed = True

sketch10 = body.newObject("Sketcher::SketchObject", "Sketch009")
sketch10.AttachmentSupport = (doc.getObject("XY_Plane"), [""])
sketch10.MapMode = "FlatFace"
sketch10.AttachmentOffset = App.Placement(Vector(0, 0, 5), App.Rotation())
sketch10.addGeometry([
    Part.Circle(Vector(0, 15, 0), Vector(0, 0, 1), 2.5),
    Part.Circle(Vector(13, -7.5, 0), Vector(0, 0, 1), 2.5),
    Part.Circle(Vector(-13, -7.5, 0), Vector(0, 0, 1), 2.5),
], False)
sketch10.addConstraint([
    Sketcher.Constraint("Equal", 0, 1),
    Sketcher.Constraint("Equal", 1, 2),
    Sketcher.Constraint("Symmetric", 1, 3, 2, 3, -2),
    Sketcher.Constraint("PointOnObject", 0, 3, -2),
    Sketcher.Constraint("Diameter", 0, Q("5 mm")),
    Sketcher.Constraint("DistanceY", -1, 1, 0, 3, Q("15 mm")),
    Sketcher.Constraint("DistanceY", 1, 3, -1, 1, Q("7.5 mm")),
    Sketcher.Constraint("DistanceX", -1, 1, 1, 3, Q("12.990381 mm")),
])
pocket9 = body.newObject("PartDesign::Pocket", "Pocket008")
pocket9.Profile = sketch10
pocket9.Length = 0.5

sketch11 = body.newObject("Sketcher::SketchObject", "Sketch010")
sketch11.AttachmentSupport = (doc.getObject("XY_Plane"), [""])
sketch11.MapMode = "FlatFace"
sketch11.AttachmentOffset = App.Placement(Vector(0, 0, 5), App.Rotation())
sketch11.addGeometry(Part.Circle(Vector(0, 0, 0), Vector(0, 0, 1), 6), False)
sketch11.addConstraint([
    Sketcher.Constraint("Coincident", 0, 3, -1, 1),
    Sketcher.Constraint("Diameter", 0, Q("11.484693 mm")),
])
pad2 = body.newObject("PartDesign::Pad", "Pad001")
pad2.Profile = sketch11
pad2.Length = 5
pad2.Reversed = True

sketch12 = body.newObject("Sketcher::SketchObject", "Sketch011")
sketch12.AttachmentSupport = (doc.getObject("XY_Plane"), [""])
sketch12.MapMode = "FlatFace"
sketch12.AttachmentOffset = App.Placement(Vector(0, 0, 5), App.Rotation())
add_polygon(sketch12, [(-4.2, 18), (-4.2, 7.9), (-3.8, 7.9), (-3.8, 18)])
add_polygon(sketch12, [(3.8, 18), (3.8, 7.9), (4.2, 7.9), (4.2, 18)])
add_polygon(sketch12, [(-17.5, -5.8), (-8.7, -0.7), (-9, -0.3), (-17.7, -5.3)])
add_polygon(sketch12, [(-5, -7.2), (-13.7, -12.2), (-13.5, -12.7), (-4.7, -7.6)])
add_polygon(sketch12, [(13.7, -12.2), (5, -7.2), (4.7, -7.6), (13.5, -12.7)])
add_polygon(sketch12, [(8.7, -0.7), (17.5, -5.8), (17.7, -5.3), (9, -0.3)])
sketch12.addConstraint([
    Sketcher.Constraint("Vertical", 0),
    Sketcher.Constraint("Horizontal", 1),
    Sketcher.Constraint("Vertical", 2),
    Sketcher.Constraint("Horizontal", 3),
    Sketcher.Constraint("Vertical", 4),
    Sketcher.Constraint("Horizontal", 5),
    Sketcher.Constraint("Vertical", 6),
    Sketcher.Constraint("Horizontal", 7),
    Sketcher.Constraint("Symmetric", 1, 2, 4, 2, -2),
    Sketcher.Constraint("Symmetric", 3, 2, 6, 2, -2),
    Sketcher.Constraint("Symmetric", 15, 2, 16, 2, -2),
    Sketcher.Constraint("Symmetric", 14, 2, 17, 2, -2),
    Sketcher.Constraint("Symmetric", 13, 2, 18, 2, -2),
    Sketcher.Constraint("Symmetric", 12, 2, 19, 2, -2),
    Sketcher.Constraint("Symmetric", 11, 2, 20, 2, -2),
    Sketcher.Constraint("Symmetric", 10, 2, 21, 2, -2),
    Sketcher.Constraint("Symmetric", 9, 2, 22, 2, -2),
    Sketcher.Constraint("Symmetric", 8, 2, 23, 2, -2),
    Sketcher.Constraint("Perpendicular", 8, 9),
    Sketcher.Constraint("Perpendicular", 9, 10),
    Sketcher.Constraint("Perpendicular", 10, 11),
    Sketcher.Constraint("Perpendicular", 11, 12),
    Sketcher.Constraint("Perpendicular", 12, 13),
    Sketcher.Constraint("Perpendicular", 13, 14),
    Sketcher.Constraint("Perpendicular", 14, 15),
    Sketcher.Constraint("Equal", 10, 12),
    Sketcher.Constraint("Equal", 11, 13),
    Sketcher.Constraint("Angle", 8, Q("30 deg")),
    Sketcher.Constraint("DistanceX", 1, 1, 1, 2, Q("0.5 mm")),
    Sketcher.Constraint("DistanceX", 0, 2, 4, 2, Q("8 mm")),
    Sketcher.Constraint("DistanceX", 10, 2, 12, 2, Q("4 mm")),
    Sketcher.Constraint("Distance", 9, Q("0.5 mm")),
    Sketcher.Constraint("DistanceY", 0, 2, 0, 1, Q("10.069999 mm")),
    Sketcher.Constraint("DistanceY", 9, 2, -1, 1, Q("0.28605 mm")),
    Sketcher.Constraint("DistanceY", 8, 2, 0, 2, Q("8.652378 mm")),
    Sketcher.Constraint("DistanceY", 10, 2, 8, 2, Q("4.600329 mm")),
    Sketcher.Constraint("DistanceY", 12, 2, 11, 2, Q("6.495191 mm")),
    Sketcher.Constraint("DistanceX", 14, 2, 18, 2, Q("18.20891 mm")),
])
pocket10 = body.newObject("PartDesign::Pocket", "Pocket009")
pocket10.Profile = sketch12
pocket10.Length = 5

sketch13 = body.newObject("Sketcher::SketchObject", "Sketch012")
sketch13.AttachmentSupport = (doc.getObject("XY_Plane"), [""])
sketch13.MapMode = "FlatFace"
sketch13.AttachmentOffset = App.Placement(Vector(0, 0, 5), App.Rotation())
add_polygon(sketch13, [(-3.8, 18.5), (-3.8, 18), (3.8, 18), (3.8, 18.5)])
add_polygon(sketch13, [(-17.9, -6), (-14.1, -12.5), (-13.7, -12.2), (-17.5, -5.8)])
add_polygon(sketch13, [(14.1, -12.5), (17.9, -6), (17.5, -5.8), (13.7, -12.2)])
sketch13.addConstraint([
    Sketcher.Constraint("Vertical", 0),
    Sketcher.Constraint("Horizontal", 1),
    Sketcher.Constraint("Vertical", 2),
    Sketcher.Constraint("Horizontal", 3),
    Sketcher.Constraint("Symmetric", 7, 2, 8, 2, -2),
    Sketcher.Constraint("Symmetric", 6, 2, 9, 2, -2),
    Sketcher.Constraint("Symmetric", 5, 2, 10, 2, -2),
    Sketcher.Constraint("Symmetric", 4, 2, 11, 2, -2),
    Sketcher.Constraint("Perpendicular", 4, 5),
    Sketcher.Constraint("Perpendicular", 5, 6),
    Sketcher.Constraint("Perpendicular", 6, 7),
    Sketcher.Constraint("Angle", 4, Q("-60 deg")),
    Sketcher.Constraint("DistanceX", 1, 1, 1, 2, Q("7.5 mm")),
    Sketcher.Constraint("DistanceY", 0, 2, 0, 1, Q("0.5 mm")),
    Sketcher.Constraint("Distance", 4, Q("7.5 mm")),
    Sketcher.Constraint("Distance", 5, Q("0.5 mm")),
    Sketcher.Constraint("DistanceX", 0, 2, -1, 1, Q("3.75 mm")),
    Sketcher.Constraint("DistanceX", 4, 2, -1, 1, Q("14.14647 mm")),
    Sketcher.Constraint("DistanceY", 4, 2, 0, 2, Q("30.50091 mm")),
    Sketcher.Constraint("DistanceY", -1, 1, 0, 2, Q("18.003315 mm")),
])
pad3 = body.newObject("PartDesign::Pad", "Pad002")
pad3.Profile = sketch13
pad3.Length = 5
pad3.Reversed = True

doc.recompute()
